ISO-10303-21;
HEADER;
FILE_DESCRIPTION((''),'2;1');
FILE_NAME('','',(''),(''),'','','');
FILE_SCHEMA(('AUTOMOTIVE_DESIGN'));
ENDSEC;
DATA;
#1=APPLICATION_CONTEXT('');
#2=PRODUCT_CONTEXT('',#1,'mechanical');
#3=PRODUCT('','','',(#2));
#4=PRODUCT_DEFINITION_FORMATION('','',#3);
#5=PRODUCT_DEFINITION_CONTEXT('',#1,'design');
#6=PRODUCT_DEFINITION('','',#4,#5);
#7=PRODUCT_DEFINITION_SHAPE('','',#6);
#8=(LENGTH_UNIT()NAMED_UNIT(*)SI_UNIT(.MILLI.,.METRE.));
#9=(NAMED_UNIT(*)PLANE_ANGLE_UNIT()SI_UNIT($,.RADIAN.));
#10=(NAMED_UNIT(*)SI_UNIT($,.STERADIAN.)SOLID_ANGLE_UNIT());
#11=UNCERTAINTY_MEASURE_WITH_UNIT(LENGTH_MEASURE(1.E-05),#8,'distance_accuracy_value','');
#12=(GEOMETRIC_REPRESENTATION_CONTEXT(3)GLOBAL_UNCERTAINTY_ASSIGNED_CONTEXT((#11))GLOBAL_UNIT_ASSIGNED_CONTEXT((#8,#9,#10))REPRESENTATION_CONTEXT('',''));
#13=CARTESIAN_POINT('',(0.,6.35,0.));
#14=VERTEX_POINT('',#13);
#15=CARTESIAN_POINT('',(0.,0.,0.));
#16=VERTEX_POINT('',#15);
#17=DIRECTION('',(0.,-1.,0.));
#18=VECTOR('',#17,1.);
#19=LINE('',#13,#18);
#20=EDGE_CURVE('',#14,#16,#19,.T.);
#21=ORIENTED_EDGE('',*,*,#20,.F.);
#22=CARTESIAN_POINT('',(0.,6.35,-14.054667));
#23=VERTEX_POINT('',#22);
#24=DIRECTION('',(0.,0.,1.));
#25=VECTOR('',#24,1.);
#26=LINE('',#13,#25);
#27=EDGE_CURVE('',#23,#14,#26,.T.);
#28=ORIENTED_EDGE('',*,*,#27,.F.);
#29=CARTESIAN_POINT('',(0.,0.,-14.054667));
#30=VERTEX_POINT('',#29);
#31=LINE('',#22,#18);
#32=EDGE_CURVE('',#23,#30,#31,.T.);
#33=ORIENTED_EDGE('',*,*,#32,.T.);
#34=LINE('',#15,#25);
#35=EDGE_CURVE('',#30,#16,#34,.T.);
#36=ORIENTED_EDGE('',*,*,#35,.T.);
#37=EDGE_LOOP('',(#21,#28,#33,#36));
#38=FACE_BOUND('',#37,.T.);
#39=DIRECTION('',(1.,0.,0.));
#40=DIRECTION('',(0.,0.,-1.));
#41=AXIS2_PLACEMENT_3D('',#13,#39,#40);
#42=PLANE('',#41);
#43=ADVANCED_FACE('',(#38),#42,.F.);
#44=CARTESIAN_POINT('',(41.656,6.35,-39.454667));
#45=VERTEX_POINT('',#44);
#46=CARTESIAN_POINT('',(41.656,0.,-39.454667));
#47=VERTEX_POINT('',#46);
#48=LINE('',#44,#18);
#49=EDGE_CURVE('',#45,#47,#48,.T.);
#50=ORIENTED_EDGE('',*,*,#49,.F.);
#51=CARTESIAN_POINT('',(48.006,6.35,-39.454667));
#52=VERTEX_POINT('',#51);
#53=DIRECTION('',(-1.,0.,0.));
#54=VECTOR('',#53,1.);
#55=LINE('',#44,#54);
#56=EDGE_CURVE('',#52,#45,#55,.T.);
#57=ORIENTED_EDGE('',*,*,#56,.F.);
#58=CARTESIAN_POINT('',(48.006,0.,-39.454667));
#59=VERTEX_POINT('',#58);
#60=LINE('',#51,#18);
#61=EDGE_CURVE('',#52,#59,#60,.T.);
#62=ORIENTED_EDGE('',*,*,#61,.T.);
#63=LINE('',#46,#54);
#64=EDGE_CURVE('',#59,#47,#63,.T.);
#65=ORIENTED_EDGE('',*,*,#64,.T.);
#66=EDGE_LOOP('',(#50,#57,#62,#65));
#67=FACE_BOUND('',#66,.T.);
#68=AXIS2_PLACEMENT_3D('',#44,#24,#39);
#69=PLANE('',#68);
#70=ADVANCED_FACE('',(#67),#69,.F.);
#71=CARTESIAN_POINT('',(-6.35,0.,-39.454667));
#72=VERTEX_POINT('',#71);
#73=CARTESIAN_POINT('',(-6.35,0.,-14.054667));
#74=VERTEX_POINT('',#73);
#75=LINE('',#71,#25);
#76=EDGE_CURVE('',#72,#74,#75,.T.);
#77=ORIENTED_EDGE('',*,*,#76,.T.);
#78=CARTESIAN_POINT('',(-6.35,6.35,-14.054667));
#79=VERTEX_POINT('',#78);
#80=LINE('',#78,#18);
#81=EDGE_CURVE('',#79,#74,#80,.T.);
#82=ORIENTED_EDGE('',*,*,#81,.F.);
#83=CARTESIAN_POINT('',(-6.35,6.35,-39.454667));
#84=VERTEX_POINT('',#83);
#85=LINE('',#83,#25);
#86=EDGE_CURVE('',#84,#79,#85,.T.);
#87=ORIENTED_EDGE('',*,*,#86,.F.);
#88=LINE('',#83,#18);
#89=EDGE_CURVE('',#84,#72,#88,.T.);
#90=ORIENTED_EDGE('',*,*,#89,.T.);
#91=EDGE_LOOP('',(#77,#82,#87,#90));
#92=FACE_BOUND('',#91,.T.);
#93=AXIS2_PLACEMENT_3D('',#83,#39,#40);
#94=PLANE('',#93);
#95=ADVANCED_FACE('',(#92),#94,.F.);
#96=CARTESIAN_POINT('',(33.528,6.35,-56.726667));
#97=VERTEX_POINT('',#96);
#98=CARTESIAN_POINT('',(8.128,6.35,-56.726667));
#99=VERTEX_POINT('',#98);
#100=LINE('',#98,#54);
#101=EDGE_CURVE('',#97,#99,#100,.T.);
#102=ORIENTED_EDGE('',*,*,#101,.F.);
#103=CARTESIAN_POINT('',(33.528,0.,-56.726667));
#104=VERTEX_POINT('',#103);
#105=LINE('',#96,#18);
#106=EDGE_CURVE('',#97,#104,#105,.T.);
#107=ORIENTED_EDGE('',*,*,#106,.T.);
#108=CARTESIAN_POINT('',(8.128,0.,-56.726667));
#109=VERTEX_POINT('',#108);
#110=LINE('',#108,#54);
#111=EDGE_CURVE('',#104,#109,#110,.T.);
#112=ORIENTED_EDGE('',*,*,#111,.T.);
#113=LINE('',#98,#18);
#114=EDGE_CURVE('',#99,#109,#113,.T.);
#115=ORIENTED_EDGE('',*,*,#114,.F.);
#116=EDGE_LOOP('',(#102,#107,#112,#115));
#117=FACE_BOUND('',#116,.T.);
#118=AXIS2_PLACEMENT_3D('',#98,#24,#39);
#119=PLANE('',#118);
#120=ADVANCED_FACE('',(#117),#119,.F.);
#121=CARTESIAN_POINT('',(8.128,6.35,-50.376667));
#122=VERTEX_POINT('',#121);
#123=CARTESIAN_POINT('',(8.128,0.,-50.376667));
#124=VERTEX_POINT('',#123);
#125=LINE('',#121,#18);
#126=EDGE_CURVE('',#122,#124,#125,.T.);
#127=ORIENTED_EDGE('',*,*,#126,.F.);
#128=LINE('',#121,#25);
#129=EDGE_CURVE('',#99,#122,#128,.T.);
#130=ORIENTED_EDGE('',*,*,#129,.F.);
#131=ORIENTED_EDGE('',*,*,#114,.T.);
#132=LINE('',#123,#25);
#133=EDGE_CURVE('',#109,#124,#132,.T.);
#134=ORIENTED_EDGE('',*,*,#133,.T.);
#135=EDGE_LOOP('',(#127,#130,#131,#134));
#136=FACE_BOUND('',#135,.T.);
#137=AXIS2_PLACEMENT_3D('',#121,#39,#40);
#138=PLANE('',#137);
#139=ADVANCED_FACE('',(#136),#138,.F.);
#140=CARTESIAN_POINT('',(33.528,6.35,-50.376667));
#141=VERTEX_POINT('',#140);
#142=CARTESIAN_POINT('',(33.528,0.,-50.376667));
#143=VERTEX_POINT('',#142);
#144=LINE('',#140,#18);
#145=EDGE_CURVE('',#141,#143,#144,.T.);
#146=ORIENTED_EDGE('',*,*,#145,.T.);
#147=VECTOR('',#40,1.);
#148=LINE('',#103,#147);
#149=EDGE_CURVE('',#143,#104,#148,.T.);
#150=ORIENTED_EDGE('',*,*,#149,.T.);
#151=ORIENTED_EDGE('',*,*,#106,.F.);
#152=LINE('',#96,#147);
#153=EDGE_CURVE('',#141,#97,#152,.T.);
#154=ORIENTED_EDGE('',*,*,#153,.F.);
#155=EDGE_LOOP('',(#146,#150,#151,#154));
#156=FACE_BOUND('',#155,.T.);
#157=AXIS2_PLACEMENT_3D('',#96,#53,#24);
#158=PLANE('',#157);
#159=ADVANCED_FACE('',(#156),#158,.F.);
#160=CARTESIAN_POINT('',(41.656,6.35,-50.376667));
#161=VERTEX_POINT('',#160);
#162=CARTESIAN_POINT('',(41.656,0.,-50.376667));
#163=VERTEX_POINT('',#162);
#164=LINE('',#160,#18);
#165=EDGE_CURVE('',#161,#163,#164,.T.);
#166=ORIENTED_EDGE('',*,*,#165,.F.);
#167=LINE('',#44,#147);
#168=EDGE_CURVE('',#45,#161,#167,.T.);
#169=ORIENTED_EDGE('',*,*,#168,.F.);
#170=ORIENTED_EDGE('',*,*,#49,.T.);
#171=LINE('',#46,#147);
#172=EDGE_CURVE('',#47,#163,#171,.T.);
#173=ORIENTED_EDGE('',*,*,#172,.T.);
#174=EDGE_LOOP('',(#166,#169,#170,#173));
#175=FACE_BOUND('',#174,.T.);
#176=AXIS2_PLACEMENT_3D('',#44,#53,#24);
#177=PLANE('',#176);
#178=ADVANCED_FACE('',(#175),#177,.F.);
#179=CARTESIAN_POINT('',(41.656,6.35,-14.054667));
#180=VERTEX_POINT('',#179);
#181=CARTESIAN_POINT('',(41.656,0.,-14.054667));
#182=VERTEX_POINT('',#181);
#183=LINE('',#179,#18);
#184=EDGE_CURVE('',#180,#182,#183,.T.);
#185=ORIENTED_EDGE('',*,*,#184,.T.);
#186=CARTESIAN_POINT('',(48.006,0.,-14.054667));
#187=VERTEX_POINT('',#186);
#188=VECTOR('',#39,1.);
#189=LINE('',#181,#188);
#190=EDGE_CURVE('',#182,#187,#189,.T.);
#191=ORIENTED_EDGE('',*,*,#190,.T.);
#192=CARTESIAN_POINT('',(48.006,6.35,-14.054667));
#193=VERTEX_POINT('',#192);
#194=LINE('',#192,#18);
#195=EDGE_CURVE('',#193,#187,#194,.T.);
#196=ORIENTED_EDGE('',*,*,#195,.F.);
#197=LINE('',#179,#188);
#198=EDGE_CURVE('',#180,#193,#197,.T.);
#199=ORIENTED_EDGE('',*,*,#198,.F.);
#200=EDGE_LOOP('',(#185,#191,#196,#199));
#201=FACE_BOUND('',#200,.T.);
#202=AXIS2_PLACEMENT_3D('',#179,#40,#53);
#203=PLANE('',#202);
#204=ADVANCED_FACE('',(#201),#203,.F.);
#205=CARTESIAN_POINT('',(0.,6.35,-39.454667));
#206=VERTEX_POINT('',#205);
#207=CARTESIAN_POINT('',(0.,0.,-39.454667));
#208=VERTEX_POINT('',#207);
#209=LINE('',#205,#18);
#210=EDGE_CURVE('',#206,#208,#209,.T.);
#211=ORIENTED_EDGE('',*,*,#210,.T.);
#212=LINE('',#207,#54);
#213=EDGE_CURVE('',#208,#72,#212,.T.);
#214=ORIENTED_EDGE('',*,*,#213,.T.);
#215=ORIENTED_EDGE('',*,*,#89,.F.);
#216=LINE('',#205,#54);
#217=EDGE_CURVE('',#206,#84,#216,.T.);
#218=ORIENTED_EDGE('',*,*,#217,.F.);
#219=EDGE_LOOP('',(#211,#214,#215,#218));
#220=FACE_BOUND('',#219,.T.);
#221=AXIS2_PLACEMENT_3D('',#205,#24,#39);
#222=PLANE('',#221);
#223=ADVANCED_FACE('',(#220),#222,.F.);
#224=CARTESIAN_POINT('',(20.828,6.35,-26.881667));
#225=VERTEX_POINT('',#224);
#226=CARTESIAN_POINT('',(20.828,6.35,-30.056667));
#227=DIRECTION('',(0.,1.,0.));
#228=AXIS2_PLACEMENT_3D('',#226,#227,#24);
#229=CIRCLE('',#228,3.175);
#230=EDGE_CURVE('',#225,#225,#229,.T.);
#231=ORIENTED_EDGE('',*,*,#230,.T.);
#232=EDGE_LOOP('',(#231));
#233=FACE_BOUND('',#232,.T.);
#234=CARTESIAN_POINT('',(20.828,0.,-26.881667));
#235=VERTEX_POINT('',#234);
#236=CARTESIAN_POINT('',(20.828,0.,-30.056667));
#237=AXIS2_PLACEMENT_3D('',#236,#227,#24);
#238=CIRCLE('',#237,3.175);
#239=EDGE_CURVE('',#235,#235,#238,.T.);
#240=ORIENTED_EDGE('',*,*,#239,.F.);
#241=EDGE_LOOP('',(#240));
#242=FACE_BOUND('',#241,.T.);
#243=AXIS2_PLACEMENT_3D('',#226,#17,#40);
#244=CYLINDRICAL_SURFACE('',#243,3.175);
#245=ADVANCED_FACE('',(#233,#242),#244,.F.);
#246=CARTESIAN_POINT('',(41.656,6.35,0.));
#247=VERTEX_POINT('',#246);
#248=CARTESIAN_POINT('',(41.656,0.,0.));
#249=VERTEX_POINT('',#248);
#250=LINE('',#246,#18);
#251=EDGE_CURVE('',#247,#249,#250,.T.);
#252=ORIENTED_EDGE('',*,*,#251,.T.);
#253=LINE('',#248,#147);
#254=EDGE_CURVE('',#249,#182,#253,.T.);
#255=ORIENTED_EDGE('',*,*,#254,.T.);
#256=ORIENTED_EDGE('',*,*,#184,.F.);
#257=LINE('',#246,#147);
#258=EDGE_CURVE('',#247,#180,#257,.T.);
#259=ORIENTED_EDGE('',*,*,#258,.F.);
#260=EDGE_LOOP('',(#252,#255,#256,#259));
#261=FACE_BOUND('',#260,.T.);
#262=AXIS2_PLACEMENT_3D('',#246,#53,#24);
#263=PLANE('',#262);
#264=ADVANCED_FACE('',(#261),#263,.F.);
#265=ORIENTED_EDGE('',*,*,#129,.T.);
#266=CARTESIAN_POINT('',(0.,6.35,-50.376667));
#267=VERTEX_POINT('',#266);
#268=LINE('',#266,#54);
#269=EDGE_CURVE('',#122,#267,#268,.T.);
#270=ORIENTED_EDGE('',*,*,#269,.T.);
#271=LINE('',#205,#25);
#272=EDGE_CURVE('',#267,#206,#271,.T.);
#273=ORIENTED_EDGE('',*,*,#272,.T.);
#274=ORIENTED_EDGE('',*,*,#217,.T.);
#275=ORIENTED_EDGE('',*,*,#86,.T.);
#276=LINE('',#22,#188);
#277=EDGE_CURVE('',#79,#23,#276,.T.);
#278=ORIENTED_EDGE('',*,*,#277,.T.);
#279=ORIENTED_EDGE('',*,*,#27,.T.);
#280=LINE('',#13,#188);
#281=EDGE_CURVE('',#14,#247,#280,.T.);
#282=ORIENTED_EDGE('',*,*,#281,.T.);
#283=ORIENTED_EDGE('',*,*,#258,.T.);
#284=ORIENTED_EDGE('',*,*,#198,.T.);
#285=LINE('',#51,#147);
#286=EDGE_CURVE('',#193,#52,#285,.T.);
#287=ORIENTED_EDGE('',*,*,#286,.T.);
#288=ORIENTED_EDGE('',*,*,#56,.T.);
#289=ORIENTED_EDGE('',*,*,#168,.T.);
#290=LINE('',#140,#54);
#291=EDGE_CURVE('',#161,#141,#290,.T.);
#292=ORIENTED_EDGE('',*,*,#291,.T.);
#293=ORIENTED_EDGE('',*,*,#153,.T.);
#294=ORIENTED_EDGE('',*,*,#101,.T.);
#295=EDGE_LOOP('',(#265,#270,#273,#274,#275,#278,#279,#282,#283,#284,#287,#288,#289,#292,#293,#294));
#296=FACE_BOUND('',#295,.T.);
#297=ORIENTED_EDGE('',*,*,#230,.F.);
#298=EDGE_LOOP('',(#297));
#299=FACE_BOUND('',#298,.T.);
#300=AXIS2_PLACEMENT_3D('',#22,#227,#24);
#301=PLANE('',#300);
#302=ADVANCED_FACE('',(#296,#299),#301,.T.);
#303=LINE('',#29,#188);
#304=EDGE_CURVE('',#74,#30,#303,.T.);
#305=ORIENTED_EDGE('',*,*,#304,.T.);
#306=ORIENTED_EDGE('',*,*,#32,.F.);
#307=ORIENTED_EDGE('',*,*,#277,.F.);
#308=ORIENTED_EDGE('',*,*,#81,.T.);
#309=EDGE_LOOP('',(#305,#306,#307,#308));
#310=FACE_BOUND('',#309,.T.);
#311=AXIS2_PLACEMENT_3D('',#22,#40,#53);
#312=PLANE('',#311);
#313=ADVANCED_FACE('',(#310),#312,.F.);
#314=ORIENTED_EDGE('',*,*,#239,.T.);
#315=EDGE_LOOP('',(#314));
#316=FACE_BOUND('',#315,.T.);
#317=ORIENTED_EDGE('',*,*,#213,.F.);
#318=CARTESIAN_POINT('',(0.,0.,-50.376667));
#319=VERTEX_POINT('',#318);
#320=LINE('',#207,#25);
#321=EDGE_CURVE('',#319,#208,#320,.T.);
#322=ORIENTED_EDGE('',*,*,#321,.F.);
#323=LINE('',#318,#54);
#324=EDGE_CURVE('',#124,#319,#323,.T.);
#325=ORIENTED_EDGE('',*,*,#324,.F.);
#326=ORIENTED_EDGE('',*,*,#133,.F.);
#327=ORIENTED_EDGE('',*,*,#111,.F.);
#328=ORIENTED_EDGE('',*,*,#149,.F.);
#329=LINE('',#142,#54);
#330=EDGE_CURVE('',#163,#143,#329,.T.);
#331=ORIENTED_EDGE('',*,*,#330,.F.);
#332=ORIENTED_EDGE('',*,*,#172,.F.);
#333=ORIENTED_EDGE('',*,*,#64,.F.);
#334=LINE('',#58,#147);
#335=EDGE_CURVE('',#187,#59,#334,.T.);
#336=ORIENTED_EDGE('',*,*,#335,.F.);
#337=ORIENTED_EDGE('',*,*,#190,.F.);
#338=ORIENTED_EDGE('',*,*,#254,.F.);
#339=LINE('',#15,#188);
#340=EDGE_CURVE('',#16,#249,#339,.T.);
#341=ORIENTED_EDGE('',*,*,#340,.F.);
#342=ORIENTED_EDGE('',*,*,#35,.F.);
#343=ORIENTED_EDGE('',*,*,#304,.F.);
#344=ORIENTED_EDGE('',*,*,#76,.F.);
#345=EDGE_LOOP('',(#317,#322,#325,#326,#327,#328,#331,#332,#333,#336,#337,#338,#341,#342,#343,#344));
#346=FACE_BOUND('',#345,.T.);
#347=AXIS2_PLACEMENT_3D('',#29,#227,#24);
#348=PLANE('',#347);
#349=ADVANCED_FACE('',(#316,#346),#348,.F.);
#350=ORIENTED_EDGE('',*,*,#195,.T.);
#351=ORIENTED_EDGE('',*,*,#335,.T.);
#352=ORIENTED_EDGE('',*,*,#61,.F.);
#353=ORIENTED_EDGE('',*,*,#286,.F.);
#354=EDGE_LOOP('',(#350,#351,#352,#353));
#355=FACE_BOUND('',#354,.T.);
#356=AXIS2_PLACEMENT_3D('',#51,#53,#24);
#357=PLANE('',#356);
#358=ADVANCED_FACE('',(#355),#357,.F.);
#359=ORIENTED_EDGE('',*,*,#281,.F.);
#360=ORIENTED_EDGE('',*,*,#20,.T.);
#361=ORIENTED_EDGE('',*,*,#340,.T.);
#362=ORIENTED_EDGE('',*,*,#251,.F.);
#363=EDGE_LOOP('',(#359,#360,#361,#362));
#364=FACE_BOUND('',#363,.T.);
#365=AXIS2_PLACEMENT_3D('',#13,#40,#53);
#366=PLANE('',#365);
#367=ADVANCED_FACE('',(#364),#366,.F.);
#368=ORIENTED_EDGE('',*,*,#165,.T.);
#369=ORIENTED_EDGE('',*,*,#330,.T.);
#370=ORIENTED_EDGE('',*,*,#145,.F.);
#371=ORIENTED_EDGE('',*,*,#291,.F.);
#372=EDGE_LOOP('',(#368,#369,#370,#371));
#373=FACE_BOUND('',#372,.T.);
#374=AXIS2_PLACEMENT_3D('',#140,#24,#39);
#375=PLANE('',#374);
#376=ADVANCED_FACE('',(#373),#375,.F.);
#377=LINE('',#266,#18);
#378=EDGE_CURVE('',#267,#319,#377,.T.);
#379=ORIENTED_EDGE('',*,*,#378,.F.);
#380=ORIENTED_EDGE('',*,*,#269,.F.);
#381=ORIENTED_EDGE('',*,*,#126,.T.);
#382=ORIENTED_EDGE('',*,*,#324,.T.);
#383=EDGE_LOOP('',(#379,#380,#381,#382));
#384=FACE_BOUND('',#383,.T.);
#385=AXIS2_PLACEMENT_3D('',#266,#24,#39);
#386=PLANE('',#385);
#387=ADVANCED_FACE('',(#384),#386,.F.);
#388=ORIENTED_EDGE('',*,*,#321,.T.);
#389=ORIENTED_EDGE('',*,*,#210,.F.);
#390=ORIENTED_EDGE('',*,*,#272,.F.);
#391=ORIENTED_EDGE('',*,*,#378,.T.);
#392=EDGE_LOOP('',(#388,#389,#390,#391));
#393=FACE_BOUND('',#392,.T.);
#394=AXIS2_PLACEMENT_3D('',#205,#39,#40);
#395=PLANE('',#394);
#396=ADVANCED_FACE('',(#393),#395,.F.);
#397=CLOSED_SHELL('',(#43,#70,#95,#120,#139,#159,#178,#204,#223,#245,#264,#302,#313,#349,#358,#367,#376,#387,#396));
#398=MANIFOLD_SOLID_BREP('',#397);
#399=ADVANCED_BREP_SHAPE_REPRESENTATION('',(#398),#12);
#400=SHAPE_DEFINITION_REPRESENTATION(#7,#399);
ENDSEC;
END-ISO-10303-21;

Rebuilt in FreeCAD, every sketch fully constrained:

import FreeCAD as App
import Part
import Sketcher
from FreeCAD import Vector
Q = App.Units.Quantity


def add_polygon(sketch, points):
    """Adds a closed chain of lines whose ends are joined by coincident constraints."""
    first, n = sketch.GeometryCount, len(points)
    for a, b in zip(points, points[1:] + points[:1]):
        sketch.addGeometry(Part.LineSegment(App.Vector(*a, 0), App.Vector(*b, 0)), False)
    for i in range(n):
        sketch.addConstraint(Sketcher.Constraint("Coincident", first + i, 2, first + (i + 1) % n, 1))

doc = App.newDocument("Part")
params = doc.addObject("Spreadsheet::Sheet", "Params")
for row, (alias, value) in enumerate([
    ("sketch1_diameter", "0.25 in"),
    ("sketch1_width", "1 in"),
    ("sketch1_width2", "0.32 in"),
    ("sketch1_width3", "0.25 in"),
    ("sketch1_height", "0.43 in"),
    ("pad1_length", "0.25 in"),
], start=1):
    params.set(f"A{row}", alias)
    params.set(f"B{row}", "=" + value)
    params.setAlias(f"B{row}", alias)

body = doc.addObject("PartDesign::Body", "Body")

# Sketch on XZ plane
sketch1 = body.newObject("Sketcher::SketchObject", "Sketch")
sketch1.AttachmentSupport = (doc.getObject("XZ_Plane"), [""])
sketch1.MapMode = "FlatFace"
add_polygon(sketch1, [(8.1, -56.7), (8.1, -50.4), (0, -50.4), (0, -39.5), (-6.3, -39.5), (-6.3, -14.1), (0, -14.1), (0, 0), (41.7, 0), (41.7, -14.1), (48, -14.1), (48, -39.5), (41.7, -39.5), (41.7, -50.4), (33.5, -50.4), (33.5, -56.7)])  # lines 0-15
sketch1.addGeometry(Part.Circle(Vector(20.8, -30.1, 0), Vector(0, 0, 1), 3.2), False)  # 16
sketch1.addConstraint([
    Sketcher.Constraint("Vertical", 0),
    Sketcher.Constraint("Horizontal", 1),
    Sketcher.Constraint("Vertical", 2),
    Sketcher.Constraint("Horizontal", 3),
    Sketcher.Constraint("Vertical", 4),
    Sketcher.Constraint("Horizontal", 5),
    Sketcher.Constraint("Vertical", 6),
    Sketcher.Constraint("Horizontal", 7),
    Sketcher.Constraint("Vertical", 8),
    Sketcher.Constraint("Horizontal", 9),
    Sketcher.Constraint("Vertical", 10),
    Sketcher.Constraint("Horizontal", 11),
    Sketcher.Constraint("Vertical", 12),
    Sketcher.Constraint("Horizontal", 13),
    Sketcher.Constraint("Vertical", 14),
    Sketcher.Constraint("Horizontal", 15),
    Sketcher.Constraint("Coincident", 6, 2, -1, 1),
    Sketcher.Constraint("PointOnObject", 1, 2, -2),
    Sketcher.Constraint("Horizontal", 5, 2, 8, 2),
    Sketcher.Constraint("Horizontal", 3, 2, 10, 2),
    Sketcher.Constraint("Horizontal", 1, 2, 12, 2),
    Sketcher.Constraint("Vertical", 8, 2, 11, 2),
    Sketcher.Constraint("Equal", 5, 9),
    Sketcher.Constraint("Equal", 1, 13),
    Sketcher.Constraint("Equal", 11, 0),
    Sketcher.Constraint("Equal", 15, 4),
    Sketcher.Constraint("Diameter", 16, Q("0.25 in")),
    Sketcher.Constraint("DistanceX", 15, 2, 15, 1, Q("1 in")),
    Sketcher.Constraint("DistanceX", 1, 2, 1, 1, Q("0.32 in")),
    Sketcher.Constraint("DistanceX", 3, 2, 3, 1, Q("0.25 in")),
    Sketcher.Constraint("DistanceY", 2, 1, 2, 2, Q("0.43 in")),
    Sketcher.Constraint("DistanceX", 0, 2, 16, 3, Q("0.5 in")),
    Sketcher.Constraint("DistanceY", 0, 2, 16, 3, Q("0.8 in")),
    Sketcher.Constraint("DistanceY", 6, 1, 6, 2, Q("14.054667 mm")),
])
sketch1.setExpression("Constraints[42]", "Params.sketch1_diameter")
sketch1.setExpression("Constraints[43]", "Params.sketch1_width")
sketch1.setExpression("Constraints[44]", "Params.sketch1_width2")
sketch1.setExpression("Constraints[45]", "Params.sketch1_width3")
sketch1.setExpression("Constraints[46]", "Params.sketch1_height")
pad1 = body.newObject("PartDesign::Pad", "Pad")
pad1.Profile = sketch1
pad1.setExpression("Length", "Params.pad1_length")
pad1.Reversed = True

doc.recompute()
